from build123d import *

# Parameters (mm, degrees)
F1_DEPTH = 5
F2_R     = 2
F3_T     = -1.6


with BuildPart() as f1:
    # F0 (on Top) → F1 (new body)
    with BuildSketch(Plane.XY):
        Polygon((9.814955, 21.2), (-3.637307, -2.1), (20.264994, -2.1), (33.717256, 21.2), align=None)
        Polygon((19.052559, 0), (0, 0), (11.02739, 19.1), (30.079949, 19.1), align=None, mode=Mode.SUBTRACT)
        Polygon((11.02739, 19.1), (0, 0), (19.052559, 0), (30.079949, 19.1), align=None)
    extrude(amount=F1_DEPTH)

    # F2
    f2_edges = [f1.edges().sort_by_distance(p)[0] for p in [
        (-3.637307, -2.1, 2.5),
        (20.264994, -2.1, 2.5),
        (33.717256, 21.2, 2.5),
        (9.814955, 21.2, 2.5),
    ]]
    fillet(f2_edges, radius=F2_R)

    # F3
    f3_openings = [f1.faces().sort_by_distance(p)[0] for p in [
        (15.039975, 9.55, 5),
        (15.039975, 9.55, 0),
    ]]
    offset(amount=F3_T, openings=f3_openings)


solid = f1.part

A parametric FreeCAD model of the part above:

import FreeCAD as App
import Part
import Sketcher

V = App.Vector
Q = App.Units.Quantity


def edges_at(feature, points):
    """Names of the edges that pass closest to the given points."""
    edges = feature.Shape.Edges
    near = lambda p: min(range(len(edges)), key=lambda i: edges[i].distToShape(Part.Vertex(*p))[0])
    return sorted({f"Edge{near(p) + 1}" for p in points})


def faces_at(feature, points):
    """Names of the faces that lie closest to the given points."""
    faces = feature.Shape.Faces
    near = lambda p: min(range(len(faces)), key=lambda i: faces[i].distToShape(Part.Vertex(*p))[0])
    return sorted({f"Face{near(p) + 1}" for p in points})


def add_polygon(sketch, points):
    """Adds a closed chain of lines whose ends are joined by coincident constraints."""
    first, n = sketch.GeometryCount, len(points)
    for a, b in zip(points, points[1:] + points[:1]):
        sketch.addGeometry(Part.LineSegment(App.Vector(*a, 0), App.Vector(*b, 0)), False)
    for i in range(n):
        sketch.addConstraint(Sketcher.Constraint("Coincident", first + i, 2, first + (i + 1) % n, 1))

doc = App.newDocument("Part")
body = doc.addObject("PartDesign::Body", "Body")

sketch1 = body.newObject("Sketcher::SketchObject", "Sketch")
sketch1.AttachmentSupport = (doc.getObject("XY_Plane"), [""])
sketch1.MapMode = "FlatFace"
add_polygon(sketch1, [(9.814955, 21.2), (-3.637307, -2.1), (20.264994, -2.1), (33.717256, 21.2)])
sketch1.addConstraint(Sketcher.Constraint("Horizontal", 1))
sketch1.addConstraint(Sketcher.Constraint("Horizontal", 3))
sketch1.addConstraint(Sketcher.Constraint("Parallel", 0, 2))
sketch1.addConstraint(Sketcher.Constraint("Angle", 0, Q("-120.000001 deg")))
sketch1.addConstraint(Sketcher.Constraint("DistanceY", 0, 2, -1, 1, Q("2.1 mm")))
sketch1.addConstraint(Sketcher.Constraint("DistanceY", -1, 1, 2, 2, Q("21.2 mm")))
sketch1.addConstraint(Sketcher.Constraint("DistanceX", 1, 1, 1, 2, Q("23.902301 mm")))
sketch1.addConstraint(Sketcher.Constraint("DistanceX", 0, 2, -1, 1, Q("3.637307 mm")))
pad1 = body.newObject("PartDesign::Pad", "Pad")
pad1.Profile = sketch1
pad1.Length = 5
doc.recompute()

fillet = body.newObject("PartDesign::Fillet", "Fillet")
fillet.Base = (pad1, edges_at(pad1, [
    (-3.637, -2.1, 2.5),
    (20.265, -2.1, 2.5),
    (33.717, 21.2, 2.5),
    (9.815, 21.2, 2.5),
]))
fillet.Radius = 2
doc.recompute()

thickness = body.newObject("PartDesign::Thickness", "Thickness")
thickness.Base = (fillet, faces_at(fillet, [(15.04, 9.55, 5), (15.04, 9.55, 0)]))
thickness.Value = 1.6
thickness.Reversed = True
thickness.Join = "Arc"

doc.recompute()
